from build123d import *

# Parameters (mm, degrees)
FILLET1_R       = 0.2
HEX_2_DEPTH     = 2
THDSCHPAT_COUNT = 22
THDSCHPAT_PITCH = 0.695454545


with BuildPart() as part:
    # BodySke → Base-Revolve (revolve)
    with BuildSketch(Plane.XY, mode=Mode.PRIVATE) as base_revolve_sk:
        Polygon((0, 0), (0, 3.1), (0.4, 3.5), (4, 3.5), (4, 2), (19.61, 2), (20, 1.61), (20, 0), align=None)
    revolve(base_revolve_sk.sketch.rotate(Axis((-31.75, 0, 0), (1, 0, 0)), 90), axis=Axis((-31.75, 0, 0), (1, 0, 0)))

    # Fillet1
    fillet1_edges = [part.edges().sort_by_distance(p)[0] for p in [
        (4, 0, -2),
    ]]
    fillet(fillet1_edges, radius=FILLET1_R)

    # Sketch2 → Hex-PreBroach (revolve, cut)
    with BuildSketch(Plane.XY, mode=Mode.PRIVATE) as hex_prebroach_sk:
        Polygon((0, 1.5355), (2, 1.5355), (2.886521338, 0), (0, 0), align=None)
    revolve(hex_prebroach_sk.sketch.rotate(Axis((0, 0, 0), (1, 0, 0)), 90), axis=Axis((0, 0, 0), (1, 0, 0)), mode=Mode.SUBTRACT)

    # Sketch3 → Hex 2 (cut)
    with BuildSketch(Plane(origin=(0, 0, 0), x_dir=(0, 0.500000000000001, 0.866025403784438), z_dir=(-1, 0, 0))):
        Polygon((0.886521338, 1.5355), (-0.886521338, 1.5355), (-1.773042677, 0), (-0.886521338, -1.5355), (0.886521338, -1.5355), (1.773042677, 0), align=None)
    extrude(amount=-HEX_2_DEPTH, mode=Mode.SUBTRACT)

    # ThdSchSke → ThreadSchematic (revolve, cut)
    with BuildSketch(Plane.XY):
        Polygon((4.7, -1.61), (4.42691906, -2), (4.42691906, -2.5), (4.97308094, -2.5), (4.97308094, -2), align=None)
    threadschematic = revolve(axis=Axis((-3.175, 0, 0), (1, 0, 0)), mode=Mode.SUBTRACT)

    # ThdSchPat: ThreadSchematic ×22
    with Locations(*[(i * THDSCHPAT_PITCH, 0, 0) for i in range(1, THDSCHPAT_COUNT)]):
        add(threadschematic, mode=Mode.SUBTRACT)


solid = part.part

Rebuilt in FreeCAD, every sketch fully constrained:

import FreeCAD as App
import Part
import Sketcher
Q = App.Units.Quantity


def edges_at(feature, points):
    """Names of the edges that pass closest to the given points."""
    edges = feature.Shape.Edges
    near = lambda p: min(range(len(edges)), key=lambda i: edges[i].distToShape(Part.Vertex(*p))[0])
    return sorted({f"Edge{near(p) + 1}" for p in points})

doc = App.newDocument("Part")
body = doc.addObject("PartDesign::Body", "Body")

# Sketch on XY plane
sketch1 = body.newObject("Sketcher::SketchObject", "Sketch")
sketch1.AttachmentSupport = (doc.getObject("XY_Plane"), [""])
sketch1.MapMode = "FlatFace"
sketch1.addGeometry(Part.LineSegment(App.Vector(0, 3.1, 0), App.Vector(0, 0, 0)), False)
sketch1.addGeometry(Part.LineSegment(App.Vector(0, 0, 0), App.Vector(20, 0, 0)), False)
sketch1.addGeometry(Part.LineSegment(App.Vector(20, 0, 0), App.Vector(20, 1.61, 0)), False)
sketch1.addGeometry(Part.LineSegment(App.Vector(20, 1.61, 0), App.Vector(19.61, 2, 0)), False)
sketch1.addGeometry(Part.LineSegment(App.Vector(19.61, 2, 0), App.Vector(4, 2, 0)), False)
sketch1.addGeometry(Part.LineSegment(App.Vector(4, 2, 0), App.Vector(4, 3.5, 0)), False)
sketch1.addGeometry(Part.LineSegment(App.Vector(4, 3.5, 0), App.Vector(0.4, 3.5, 0)), False)
sketch1.addGeometry(Part.LineSegment(App.Vector(0.4, 3.5, 0), App.Vector(0, 3.1, 0)), False)
sketch1.addConstraint(Sketcher.Constraint("Coincident", 0, 2, 1, 1))
sketch1.addConstraint(Sketcher.Constraint("Coincident", 1, 2, 2, 1))
sketch1.addConstraint(Sketcher.Constraint("Coincident", 2, 2, 3, 1))
sketch1.addConstraint(Sketcher.Constraint("Coincident", 3, 2, 4, 1))
sketch1.addConstraint(Sketcher.Constraint("Coincident", 4, 2, 5, 1))
sketch1.addConstraint(Sketcher.Constraint("Coincident", 5, 2, 6, 1))
sketch1.addConstraint(Sketcher.Constraint("Coincident", 6, 2, 7, 1))
sketch1.addConstraint(Sketcher.Constraint("Coincident", 7, 2, 0, 1))
sketch1.addConstraint(Sketcher.Constraint("Vertical", 0))
sketch1.addConstraint(Sketcher.Constraint("Horizontal", 1))
sketch1.addConstraint(Sketcher.Constraint("Vertical", 2))
sketch1.addConstraint(Sketcher.Constraint("Horizontal", 4))
sketch1.addConstraint(Sketcher.Constraint("Vertical", 5))
sketch1.addConstraint(Sketcher.Constraint("Horizontal", 6))
sketch1.addConstraint(Sketcher.Constraint("Coincident", 0, 2, -1, 1))
sketch1.addConstraint(Sketcher.Constraint("Perpendicular", 3, 7))
sketch1.addConstraint(Sketcher.Constraint("DistanceX", 1, 1, 1, 2, 20.0))
sketch1.addConstraint(Sketcher.Constraint("Angle", 3, Q("135 deg")))
sketch1.addConstraint(Sketcher.Constraint("DistanceX", 6, 2, 6, 1, 3.6))
sketch1.addConstraint(Sketcher.Constraint("DistanceY", 0, 2, 0, 1, 3.1))
sketch1.addConstraint(Sketcher.Constraint("DistanceY", 5, 1, 5, 2, 1.5))
sketch1.addConstraint(Sketcher.Constraint("DistanceY", -1, 1, 3, 2, 2.0))
sketch1.addConstraint(Sketcher.Constraint("DistanceX", 4, 2, 4, 1, 15.61))
revolution = body.newObject("PartDesign::Revolution", "Revolution")
revolution.Profile = sketch1
revolution.ReferenceAxis = (sketch1, ["H_Axis"])
revolution.Angle = 360
doc.recompute()

fillet = body.newObject("PartDesign::Fillet", "Fillet")
fillet.Base = (revolution, edges_at(revolution, [(4, 0, -2)]))
fillet.Radius = 0.2

# Sketch on XY plane
sketch2 = body.newObject("Sketcher::SketchObject", "Sketch001")
sketch2.AttachmentSupport = (doc.getObject("XY_Plane"), [""])
sketch2.MapMode = "FlatFace"
sketch2.addGeometry(Part.LineSegment(App.Vector(2, 1.5355, 0), App.Vector(0, 1.5355, 0)), False)
sketch2.addGeometry(Part.LineSegment(App.Vector(0, 1.5355, 0), App.Vector(0, 0, 0)), False)
sketch2.addGeometry(Part.LineSegment(App.Vector(0, 0, 0), App.Vector(2.886521, 0, 0)), False)
sketch2.addGeometry(Part.LineSegment(App.Vector(2.886521, 0, 0), App.Vector(2, 1.5355, 0)), False)
sketch2.addConstraint(Sketcher.Constraint("Coincident", 0, 2, 1, 1))
sketch2.addConstraint(Sketcher.Constraint("Coincident", 1, 2, 2, 1))
sketch2.addConstraint(Sketcher.Constraint("Coincident", 2, 2, 3, 1))
sketch2.addConstraint(Sketcher.Constraint("Coincident", 3, 2, 0, 1))
sketch2.addConstraint(Sketcher.Constraint("Horizontal", 0))
sketch2.addConstraint(Sketcher.Constraint("Vertical", 1))
sketch2.addConstraint(Sketcher.Constraint("Horizontal", 2))
sketch2.addConstraint(Sketcher.Constraint("Coincident", 1, 2, -1, 1))
sketch2.addConstraint(Sketcher.Constraint("DistanceX", 0, 2, 0, 1, 2.0))
sketch2.addConstraint(Sketcher.Constraint("Angle", 3, Q("120 deg")))
sketch2.addConstraint(Sketcher.Constraint("DistanceY", 1, 2, 1, 1, 1.5355))
groove = body.newObject("PartDesign::Groove", "Groove")
groove.Profile = sketch2
groove.ReferenceAxis = (sketch2, ["H_Axis"])
groove.Angle = 360

# Sketch on YZ plane
sketch3 = body.newObject("Sketcher::SketchObject", "Sketch002")
sketch3.AttachmentSupport = (doc.getObject("YZ_Plane"), [""])
sketch3.MapMode = "FlatFace"
sketch3.addGeometry(Part.LineSegment(App.Vector(1.773043, 0, 0), App.Vector(0.886521, -1.5355, 0)), False)
sketch3.addGeometry(Part.LineSegment(App.Vector(0.886521, -1.5355, 0), App.Vector(-0.886521, -1.5355, 0)), False)
sketch3.addGeometry(Part.LineSegment(App.Vector(-0.886521, -1.5355, 0), App.Vector(-1.773043, 0, 0)), False)
sketch3.addGeometry(Part.LineSegment(App.Vector(-1.773043, 0, 0), App.Vector(-0.886521, 1.5355, 0)), False)
sketch3.addGeometry(Part.LineSegment(App.Vector(-0.886521, 1.5355, 0), App.Vector(0.886521, 1.5355, 0)), False)
sketch3.addGeometry(Part.LineSegment(App.Vector(0.886521, 1.5355, 0), App.Vector(1.773043, 0, 0)), False)
sketch3.addConstraint(Sketcher.Constraint("Coincident", 0, 2, 1, 1))
sketch3.addConstraint(Sketcher.Constraint("Coincident", 1, 2, 2, 1))
sketch3.addConstraint(Sketcher.Constraint("Coincident", 2, 2, 3, 1))
sketch3.addConstraint(Sketcher.Constraint("Coincident", 3, 2, 4, 1))
sketch3.addConstraint(Sketcher.Constraint("Coincident", 4, 2, 5, 1))
sketch3.addConstraint(Sketcher.Constraint("Coincident", 5, 2, 0, 1))
sketch3.addConstraint(Sketcher.Constraint("Horizontal", 1))
sketch3.addConstraint(Sketcher.Constraint("Horizontal", 4))
sketch3.addConstraint(Sketcher.Constraint("Symmetric", 0, 2, 3, 2, -1, 1))
sketch3.addConstraint(Sketcher.Constraint("Symmetric", 2, 2, 5, 2, -1, 1))
sketch3.addConstraint(Sketcher.Constraint("PointOnObject", 2, 2, -1))
sketch3.addConstraint(Sketcher.Constraint("Parallel", 2, 5))
sketch3.addConstraint(Sketcher.Constraint("Vertical", 1, 2, 3, 2))
sketch3.addConstraint(Sketcher.Constraint("Angle", 0, Q("-120 deg")))
sketch3.addConstraint(Sketcher.Constraint("DistanceY", 1, 2, 3, 2, 3.071))
sketch3.addConstraint(Sketcher.Constraint("DistanceX", 1, 2, 1, 1, 1.773043))
pocket1 = body.newObject("PartDesign::Pocket", "Pocket")
pocket1.Profile = sketch3
pocket1.Length = 2
pocket1.Reversed = True

# Sketch on XY plane
sketch4 = body.newObject("Sketcher::SketchObject", "Sketch003")
sketch4.AttachmentSupport = (doc.getObject("XY_Plane"), [""])
sketch4.MapMode = "FlatFace"
sketch4.addGeometry(Part.LineSegment(App.Vector(4.7, -1.61, 0), App.Vector(4.426919, -2, 0)), False)
sketch4.addGeometry(Part.LineSegment(App.Vector(4.426919, -2, 0), App.Vector(4.426919, -2.5, 0)), False)
sketch4.addGeometry(Part.LineSegment(App.Vector(4.426919, -2.5, 0), App.Vector(4.973081, -2.5, 0)), False)
sketch4.addGeometry(Part.LineSegment(App.Vector(4.973081, -2.5, 0), App.Vector(4.973081, -2, 0)), False)
sketch4.addGeometry(Part.LineSegment(App.Vector(4.973081, -2, 0), App.Vector(4.7, -1.61, 0)), False)
sketch4.addConstraint(Sketcher.Constraint("Coincident", 0, 2, 1, 1))
sketch4.addConstraint(Sketcher.Constraint("Coincident", 1, 2, 2, 1))
sketch4.addConstraint(Sketcher.Constraint("Coincident", 2, 2, 3, 1))
sketch4.addConstraint(Sketcher.Constraint("Coincident", 3, 2, 4, 1))
sketch4.addConstraint(Sketcher.Constraint("Coincident", 4, 2, 0, 1))
sketch4.addConstraint(Sketcher.Constraint("Vertical", 1))
sketch4.addConstraint(Sketcher.Constraint("Horizontal", 2))
sketch4.addConstraint(Sketcher.Constraint("Vertical", 3))
sketch4.addConstraint(Sketcher.Constraint("Horizontal", 0, 2, 3, 2))
sketch4.addConstraint(Sketcher.Constraint("Equal", 0, 4))
sketch4.addConstraint(Sketcher.Constraint("Angle", 0, Q("-125 deg")))
sketch4.addConstraint(Sketcher.Constraint("DistanceY", 1, 2, 1, 1, 0.5))
sketch4.addConstraint(Sketcher.Constraint("DistanceY", 0, 2, -1, 1, 2.0))
sketch4.addConstraint(Sketcher.Constraint("DistanceX", -1, 1, 4, 2, 4.7))
sketch4.addConstraint(Sketcher.Constraint("DistanceY", 4, 2, -1, 1, 1.61))
groove2 = body.newObject("PartDesign::Groove", "Groove001")
groove2.Profile = sketch4
groove2.ReferenceAxis = (sketch4, ["H_Axis"])
groove2.Angle = 360
doc.recompute()

linearpattern = body.newObject("PartDesign::LinearPattern", "LinearPattern")
linearpattern.Originals = [groove2]
linearpattern.Direction = (doc.getObject("X_Axis"), [""])
linearpattern.Mode = "offset"
linearpattern.Offset = 0.695455
linearpattern.Occurrences = 22
body.Tip = linearpattern

doc.recompute()
